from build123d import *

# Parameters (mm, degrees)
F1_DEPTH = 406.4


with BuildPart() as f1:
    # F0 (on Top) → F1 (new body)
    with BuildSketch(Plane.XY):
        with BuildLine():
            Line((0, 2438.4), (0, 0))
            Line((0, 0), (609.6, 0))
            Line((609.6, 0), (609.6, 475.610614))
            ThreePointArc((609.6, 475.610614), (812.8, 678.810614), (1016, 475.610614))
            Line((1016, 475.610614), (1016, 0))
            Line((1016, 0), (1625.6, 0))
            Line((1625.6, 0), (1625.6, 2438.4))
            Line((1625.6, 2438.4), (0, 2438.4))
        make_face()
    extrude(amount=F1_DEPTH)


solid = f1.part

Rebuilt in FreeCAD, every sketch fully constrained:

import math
import FreeCAD as App
import Part
import Sketcher
from FreeCAD import Vector
Q = App.Units.Quantity

doc = App.newDocument("Part")
body = doc.addObject("PartDesign::Body", "Body")

# Sketch on XY plane
sketch1 = body.newObject("Sketcher::SketchObject", "Sketch")
sketch1.AttachmentSupport = (doc.getObject("XY_Plane"), [""])
sketch1.MapMode = "FlatFace"
sketch1.addGeometry(Part.LineSegment(Vector(0, 2438.4, 0), Vector(0, 0, 0)), False)
sketch1.addGeometry(Part.LineSegment(Vector(0, 0, 0), Vector(609.6, 0, 0)), False)
sketch1.addGeometry(Part.LineSegment(Vector(609.6, 0, 0), Vector(609.6, 475.610614, 0)), False)
sketch1.addGeometry(Part.ArcOfCircle(Part.Circle(Vector(812.8, 475.610614, 0), Vector(0, 0, 1), 203.2), math.radians(0), math.radians(180)), False)
sketch1.addGeometry(Part.LineSegment(Vector(1016, 475.610614, 0), Vector(1016, 0, 0)), False)
sketch1.addGeometry(Part.LineSegment(Vector(1016, 0, 0), Vector(1625.6, 0, 0)), False)
sketch1.addGeometry(Part.LineSegment(Vector(1625.6, 0, 0), Vector(1625.6, 2438.4, 0)), False)
sketch1.addGeometry(Part.LineSegment(Vector(1625.6, 2438.4, 0), Vector(0, 2438.4, 0)), False)
sketch1.addConstraint(Sketcher.Constraint("Coincident", 0, 2, 1, 1))
sketch1.addConstraint(Sketcher.Constraint("Coincident", 1, 2, 2, 1))
sketch1.addConstraint(Sketcher.Constraint("Tangent", 2, 2, 3, 2))
sketch1.addConstraint(Sketcher.Constraint("Tangent", 3, 1, 4, 1))
sketch1.addConstraint(Sketcher.Constraint("Coincident", 4, 2, 5, 1))
sketch1.addConstraint(Sketcher.Constraint("Coincident", 5, 2, 6, 1))
sketch1.addConstraint(Sketcher.Constraint("Coincident", 6, 2, 7, 1))
sketch1.addConstraint(Sketcher.Constraint("Coincident", 7, 2, 0, 1))
sketch1.addConstraint(Sketcher.Constraint("Vertical", 0))
sketch1.addConstraint(Sketcher.Constraint("Horizontal", 1))
sketch1.addConstraint(Sketcher.Constraint("Vertical", 2))
sketch1.addConstraint(Sketcher.Constraint("Vertical", 4))
sketch1.addConstraint(Sketcher.Constraint("Horizontal", 5))
sketch1.addConstraint(Sketcher.Constraint("Vertical", 6))
sketch1.addConstraint(Sketcher.Constraint("Horizontal", 7))
sketch1.addConstraint(Sketcher.Constraint("Coincident", 0, 2, -1, 1))
sketch1.addConstraint(Sketcher.Constraint("PointOnObject", 4, 2, -1))
sketch1.addConstraint(Sketcher.Constraint("Equal", 1, 5))
sketch1.addConstraint(Sketcher.Constraint("Radius", 3, Q("8 in")))
sketch1.addConstraint(Sketcher.Constraint("DistanceX", 1, 1, 1, 2, Q("24 in")))
sketch1.addConstraint(Sketcher.Constraint("DistanceY", 0, 2, 0, 1, Q("96 in")))
sketch1.addConstraint(Sketcher.Constraint("DistanceY", 2, 1, 2, 2, Q("475.610614 mm")))
pad1 = body.newObject("PartDesign::Pad", "Pad")
pad1.Profile = sketch1
pad1.Length = Q("16 in")

doc.recompute()
